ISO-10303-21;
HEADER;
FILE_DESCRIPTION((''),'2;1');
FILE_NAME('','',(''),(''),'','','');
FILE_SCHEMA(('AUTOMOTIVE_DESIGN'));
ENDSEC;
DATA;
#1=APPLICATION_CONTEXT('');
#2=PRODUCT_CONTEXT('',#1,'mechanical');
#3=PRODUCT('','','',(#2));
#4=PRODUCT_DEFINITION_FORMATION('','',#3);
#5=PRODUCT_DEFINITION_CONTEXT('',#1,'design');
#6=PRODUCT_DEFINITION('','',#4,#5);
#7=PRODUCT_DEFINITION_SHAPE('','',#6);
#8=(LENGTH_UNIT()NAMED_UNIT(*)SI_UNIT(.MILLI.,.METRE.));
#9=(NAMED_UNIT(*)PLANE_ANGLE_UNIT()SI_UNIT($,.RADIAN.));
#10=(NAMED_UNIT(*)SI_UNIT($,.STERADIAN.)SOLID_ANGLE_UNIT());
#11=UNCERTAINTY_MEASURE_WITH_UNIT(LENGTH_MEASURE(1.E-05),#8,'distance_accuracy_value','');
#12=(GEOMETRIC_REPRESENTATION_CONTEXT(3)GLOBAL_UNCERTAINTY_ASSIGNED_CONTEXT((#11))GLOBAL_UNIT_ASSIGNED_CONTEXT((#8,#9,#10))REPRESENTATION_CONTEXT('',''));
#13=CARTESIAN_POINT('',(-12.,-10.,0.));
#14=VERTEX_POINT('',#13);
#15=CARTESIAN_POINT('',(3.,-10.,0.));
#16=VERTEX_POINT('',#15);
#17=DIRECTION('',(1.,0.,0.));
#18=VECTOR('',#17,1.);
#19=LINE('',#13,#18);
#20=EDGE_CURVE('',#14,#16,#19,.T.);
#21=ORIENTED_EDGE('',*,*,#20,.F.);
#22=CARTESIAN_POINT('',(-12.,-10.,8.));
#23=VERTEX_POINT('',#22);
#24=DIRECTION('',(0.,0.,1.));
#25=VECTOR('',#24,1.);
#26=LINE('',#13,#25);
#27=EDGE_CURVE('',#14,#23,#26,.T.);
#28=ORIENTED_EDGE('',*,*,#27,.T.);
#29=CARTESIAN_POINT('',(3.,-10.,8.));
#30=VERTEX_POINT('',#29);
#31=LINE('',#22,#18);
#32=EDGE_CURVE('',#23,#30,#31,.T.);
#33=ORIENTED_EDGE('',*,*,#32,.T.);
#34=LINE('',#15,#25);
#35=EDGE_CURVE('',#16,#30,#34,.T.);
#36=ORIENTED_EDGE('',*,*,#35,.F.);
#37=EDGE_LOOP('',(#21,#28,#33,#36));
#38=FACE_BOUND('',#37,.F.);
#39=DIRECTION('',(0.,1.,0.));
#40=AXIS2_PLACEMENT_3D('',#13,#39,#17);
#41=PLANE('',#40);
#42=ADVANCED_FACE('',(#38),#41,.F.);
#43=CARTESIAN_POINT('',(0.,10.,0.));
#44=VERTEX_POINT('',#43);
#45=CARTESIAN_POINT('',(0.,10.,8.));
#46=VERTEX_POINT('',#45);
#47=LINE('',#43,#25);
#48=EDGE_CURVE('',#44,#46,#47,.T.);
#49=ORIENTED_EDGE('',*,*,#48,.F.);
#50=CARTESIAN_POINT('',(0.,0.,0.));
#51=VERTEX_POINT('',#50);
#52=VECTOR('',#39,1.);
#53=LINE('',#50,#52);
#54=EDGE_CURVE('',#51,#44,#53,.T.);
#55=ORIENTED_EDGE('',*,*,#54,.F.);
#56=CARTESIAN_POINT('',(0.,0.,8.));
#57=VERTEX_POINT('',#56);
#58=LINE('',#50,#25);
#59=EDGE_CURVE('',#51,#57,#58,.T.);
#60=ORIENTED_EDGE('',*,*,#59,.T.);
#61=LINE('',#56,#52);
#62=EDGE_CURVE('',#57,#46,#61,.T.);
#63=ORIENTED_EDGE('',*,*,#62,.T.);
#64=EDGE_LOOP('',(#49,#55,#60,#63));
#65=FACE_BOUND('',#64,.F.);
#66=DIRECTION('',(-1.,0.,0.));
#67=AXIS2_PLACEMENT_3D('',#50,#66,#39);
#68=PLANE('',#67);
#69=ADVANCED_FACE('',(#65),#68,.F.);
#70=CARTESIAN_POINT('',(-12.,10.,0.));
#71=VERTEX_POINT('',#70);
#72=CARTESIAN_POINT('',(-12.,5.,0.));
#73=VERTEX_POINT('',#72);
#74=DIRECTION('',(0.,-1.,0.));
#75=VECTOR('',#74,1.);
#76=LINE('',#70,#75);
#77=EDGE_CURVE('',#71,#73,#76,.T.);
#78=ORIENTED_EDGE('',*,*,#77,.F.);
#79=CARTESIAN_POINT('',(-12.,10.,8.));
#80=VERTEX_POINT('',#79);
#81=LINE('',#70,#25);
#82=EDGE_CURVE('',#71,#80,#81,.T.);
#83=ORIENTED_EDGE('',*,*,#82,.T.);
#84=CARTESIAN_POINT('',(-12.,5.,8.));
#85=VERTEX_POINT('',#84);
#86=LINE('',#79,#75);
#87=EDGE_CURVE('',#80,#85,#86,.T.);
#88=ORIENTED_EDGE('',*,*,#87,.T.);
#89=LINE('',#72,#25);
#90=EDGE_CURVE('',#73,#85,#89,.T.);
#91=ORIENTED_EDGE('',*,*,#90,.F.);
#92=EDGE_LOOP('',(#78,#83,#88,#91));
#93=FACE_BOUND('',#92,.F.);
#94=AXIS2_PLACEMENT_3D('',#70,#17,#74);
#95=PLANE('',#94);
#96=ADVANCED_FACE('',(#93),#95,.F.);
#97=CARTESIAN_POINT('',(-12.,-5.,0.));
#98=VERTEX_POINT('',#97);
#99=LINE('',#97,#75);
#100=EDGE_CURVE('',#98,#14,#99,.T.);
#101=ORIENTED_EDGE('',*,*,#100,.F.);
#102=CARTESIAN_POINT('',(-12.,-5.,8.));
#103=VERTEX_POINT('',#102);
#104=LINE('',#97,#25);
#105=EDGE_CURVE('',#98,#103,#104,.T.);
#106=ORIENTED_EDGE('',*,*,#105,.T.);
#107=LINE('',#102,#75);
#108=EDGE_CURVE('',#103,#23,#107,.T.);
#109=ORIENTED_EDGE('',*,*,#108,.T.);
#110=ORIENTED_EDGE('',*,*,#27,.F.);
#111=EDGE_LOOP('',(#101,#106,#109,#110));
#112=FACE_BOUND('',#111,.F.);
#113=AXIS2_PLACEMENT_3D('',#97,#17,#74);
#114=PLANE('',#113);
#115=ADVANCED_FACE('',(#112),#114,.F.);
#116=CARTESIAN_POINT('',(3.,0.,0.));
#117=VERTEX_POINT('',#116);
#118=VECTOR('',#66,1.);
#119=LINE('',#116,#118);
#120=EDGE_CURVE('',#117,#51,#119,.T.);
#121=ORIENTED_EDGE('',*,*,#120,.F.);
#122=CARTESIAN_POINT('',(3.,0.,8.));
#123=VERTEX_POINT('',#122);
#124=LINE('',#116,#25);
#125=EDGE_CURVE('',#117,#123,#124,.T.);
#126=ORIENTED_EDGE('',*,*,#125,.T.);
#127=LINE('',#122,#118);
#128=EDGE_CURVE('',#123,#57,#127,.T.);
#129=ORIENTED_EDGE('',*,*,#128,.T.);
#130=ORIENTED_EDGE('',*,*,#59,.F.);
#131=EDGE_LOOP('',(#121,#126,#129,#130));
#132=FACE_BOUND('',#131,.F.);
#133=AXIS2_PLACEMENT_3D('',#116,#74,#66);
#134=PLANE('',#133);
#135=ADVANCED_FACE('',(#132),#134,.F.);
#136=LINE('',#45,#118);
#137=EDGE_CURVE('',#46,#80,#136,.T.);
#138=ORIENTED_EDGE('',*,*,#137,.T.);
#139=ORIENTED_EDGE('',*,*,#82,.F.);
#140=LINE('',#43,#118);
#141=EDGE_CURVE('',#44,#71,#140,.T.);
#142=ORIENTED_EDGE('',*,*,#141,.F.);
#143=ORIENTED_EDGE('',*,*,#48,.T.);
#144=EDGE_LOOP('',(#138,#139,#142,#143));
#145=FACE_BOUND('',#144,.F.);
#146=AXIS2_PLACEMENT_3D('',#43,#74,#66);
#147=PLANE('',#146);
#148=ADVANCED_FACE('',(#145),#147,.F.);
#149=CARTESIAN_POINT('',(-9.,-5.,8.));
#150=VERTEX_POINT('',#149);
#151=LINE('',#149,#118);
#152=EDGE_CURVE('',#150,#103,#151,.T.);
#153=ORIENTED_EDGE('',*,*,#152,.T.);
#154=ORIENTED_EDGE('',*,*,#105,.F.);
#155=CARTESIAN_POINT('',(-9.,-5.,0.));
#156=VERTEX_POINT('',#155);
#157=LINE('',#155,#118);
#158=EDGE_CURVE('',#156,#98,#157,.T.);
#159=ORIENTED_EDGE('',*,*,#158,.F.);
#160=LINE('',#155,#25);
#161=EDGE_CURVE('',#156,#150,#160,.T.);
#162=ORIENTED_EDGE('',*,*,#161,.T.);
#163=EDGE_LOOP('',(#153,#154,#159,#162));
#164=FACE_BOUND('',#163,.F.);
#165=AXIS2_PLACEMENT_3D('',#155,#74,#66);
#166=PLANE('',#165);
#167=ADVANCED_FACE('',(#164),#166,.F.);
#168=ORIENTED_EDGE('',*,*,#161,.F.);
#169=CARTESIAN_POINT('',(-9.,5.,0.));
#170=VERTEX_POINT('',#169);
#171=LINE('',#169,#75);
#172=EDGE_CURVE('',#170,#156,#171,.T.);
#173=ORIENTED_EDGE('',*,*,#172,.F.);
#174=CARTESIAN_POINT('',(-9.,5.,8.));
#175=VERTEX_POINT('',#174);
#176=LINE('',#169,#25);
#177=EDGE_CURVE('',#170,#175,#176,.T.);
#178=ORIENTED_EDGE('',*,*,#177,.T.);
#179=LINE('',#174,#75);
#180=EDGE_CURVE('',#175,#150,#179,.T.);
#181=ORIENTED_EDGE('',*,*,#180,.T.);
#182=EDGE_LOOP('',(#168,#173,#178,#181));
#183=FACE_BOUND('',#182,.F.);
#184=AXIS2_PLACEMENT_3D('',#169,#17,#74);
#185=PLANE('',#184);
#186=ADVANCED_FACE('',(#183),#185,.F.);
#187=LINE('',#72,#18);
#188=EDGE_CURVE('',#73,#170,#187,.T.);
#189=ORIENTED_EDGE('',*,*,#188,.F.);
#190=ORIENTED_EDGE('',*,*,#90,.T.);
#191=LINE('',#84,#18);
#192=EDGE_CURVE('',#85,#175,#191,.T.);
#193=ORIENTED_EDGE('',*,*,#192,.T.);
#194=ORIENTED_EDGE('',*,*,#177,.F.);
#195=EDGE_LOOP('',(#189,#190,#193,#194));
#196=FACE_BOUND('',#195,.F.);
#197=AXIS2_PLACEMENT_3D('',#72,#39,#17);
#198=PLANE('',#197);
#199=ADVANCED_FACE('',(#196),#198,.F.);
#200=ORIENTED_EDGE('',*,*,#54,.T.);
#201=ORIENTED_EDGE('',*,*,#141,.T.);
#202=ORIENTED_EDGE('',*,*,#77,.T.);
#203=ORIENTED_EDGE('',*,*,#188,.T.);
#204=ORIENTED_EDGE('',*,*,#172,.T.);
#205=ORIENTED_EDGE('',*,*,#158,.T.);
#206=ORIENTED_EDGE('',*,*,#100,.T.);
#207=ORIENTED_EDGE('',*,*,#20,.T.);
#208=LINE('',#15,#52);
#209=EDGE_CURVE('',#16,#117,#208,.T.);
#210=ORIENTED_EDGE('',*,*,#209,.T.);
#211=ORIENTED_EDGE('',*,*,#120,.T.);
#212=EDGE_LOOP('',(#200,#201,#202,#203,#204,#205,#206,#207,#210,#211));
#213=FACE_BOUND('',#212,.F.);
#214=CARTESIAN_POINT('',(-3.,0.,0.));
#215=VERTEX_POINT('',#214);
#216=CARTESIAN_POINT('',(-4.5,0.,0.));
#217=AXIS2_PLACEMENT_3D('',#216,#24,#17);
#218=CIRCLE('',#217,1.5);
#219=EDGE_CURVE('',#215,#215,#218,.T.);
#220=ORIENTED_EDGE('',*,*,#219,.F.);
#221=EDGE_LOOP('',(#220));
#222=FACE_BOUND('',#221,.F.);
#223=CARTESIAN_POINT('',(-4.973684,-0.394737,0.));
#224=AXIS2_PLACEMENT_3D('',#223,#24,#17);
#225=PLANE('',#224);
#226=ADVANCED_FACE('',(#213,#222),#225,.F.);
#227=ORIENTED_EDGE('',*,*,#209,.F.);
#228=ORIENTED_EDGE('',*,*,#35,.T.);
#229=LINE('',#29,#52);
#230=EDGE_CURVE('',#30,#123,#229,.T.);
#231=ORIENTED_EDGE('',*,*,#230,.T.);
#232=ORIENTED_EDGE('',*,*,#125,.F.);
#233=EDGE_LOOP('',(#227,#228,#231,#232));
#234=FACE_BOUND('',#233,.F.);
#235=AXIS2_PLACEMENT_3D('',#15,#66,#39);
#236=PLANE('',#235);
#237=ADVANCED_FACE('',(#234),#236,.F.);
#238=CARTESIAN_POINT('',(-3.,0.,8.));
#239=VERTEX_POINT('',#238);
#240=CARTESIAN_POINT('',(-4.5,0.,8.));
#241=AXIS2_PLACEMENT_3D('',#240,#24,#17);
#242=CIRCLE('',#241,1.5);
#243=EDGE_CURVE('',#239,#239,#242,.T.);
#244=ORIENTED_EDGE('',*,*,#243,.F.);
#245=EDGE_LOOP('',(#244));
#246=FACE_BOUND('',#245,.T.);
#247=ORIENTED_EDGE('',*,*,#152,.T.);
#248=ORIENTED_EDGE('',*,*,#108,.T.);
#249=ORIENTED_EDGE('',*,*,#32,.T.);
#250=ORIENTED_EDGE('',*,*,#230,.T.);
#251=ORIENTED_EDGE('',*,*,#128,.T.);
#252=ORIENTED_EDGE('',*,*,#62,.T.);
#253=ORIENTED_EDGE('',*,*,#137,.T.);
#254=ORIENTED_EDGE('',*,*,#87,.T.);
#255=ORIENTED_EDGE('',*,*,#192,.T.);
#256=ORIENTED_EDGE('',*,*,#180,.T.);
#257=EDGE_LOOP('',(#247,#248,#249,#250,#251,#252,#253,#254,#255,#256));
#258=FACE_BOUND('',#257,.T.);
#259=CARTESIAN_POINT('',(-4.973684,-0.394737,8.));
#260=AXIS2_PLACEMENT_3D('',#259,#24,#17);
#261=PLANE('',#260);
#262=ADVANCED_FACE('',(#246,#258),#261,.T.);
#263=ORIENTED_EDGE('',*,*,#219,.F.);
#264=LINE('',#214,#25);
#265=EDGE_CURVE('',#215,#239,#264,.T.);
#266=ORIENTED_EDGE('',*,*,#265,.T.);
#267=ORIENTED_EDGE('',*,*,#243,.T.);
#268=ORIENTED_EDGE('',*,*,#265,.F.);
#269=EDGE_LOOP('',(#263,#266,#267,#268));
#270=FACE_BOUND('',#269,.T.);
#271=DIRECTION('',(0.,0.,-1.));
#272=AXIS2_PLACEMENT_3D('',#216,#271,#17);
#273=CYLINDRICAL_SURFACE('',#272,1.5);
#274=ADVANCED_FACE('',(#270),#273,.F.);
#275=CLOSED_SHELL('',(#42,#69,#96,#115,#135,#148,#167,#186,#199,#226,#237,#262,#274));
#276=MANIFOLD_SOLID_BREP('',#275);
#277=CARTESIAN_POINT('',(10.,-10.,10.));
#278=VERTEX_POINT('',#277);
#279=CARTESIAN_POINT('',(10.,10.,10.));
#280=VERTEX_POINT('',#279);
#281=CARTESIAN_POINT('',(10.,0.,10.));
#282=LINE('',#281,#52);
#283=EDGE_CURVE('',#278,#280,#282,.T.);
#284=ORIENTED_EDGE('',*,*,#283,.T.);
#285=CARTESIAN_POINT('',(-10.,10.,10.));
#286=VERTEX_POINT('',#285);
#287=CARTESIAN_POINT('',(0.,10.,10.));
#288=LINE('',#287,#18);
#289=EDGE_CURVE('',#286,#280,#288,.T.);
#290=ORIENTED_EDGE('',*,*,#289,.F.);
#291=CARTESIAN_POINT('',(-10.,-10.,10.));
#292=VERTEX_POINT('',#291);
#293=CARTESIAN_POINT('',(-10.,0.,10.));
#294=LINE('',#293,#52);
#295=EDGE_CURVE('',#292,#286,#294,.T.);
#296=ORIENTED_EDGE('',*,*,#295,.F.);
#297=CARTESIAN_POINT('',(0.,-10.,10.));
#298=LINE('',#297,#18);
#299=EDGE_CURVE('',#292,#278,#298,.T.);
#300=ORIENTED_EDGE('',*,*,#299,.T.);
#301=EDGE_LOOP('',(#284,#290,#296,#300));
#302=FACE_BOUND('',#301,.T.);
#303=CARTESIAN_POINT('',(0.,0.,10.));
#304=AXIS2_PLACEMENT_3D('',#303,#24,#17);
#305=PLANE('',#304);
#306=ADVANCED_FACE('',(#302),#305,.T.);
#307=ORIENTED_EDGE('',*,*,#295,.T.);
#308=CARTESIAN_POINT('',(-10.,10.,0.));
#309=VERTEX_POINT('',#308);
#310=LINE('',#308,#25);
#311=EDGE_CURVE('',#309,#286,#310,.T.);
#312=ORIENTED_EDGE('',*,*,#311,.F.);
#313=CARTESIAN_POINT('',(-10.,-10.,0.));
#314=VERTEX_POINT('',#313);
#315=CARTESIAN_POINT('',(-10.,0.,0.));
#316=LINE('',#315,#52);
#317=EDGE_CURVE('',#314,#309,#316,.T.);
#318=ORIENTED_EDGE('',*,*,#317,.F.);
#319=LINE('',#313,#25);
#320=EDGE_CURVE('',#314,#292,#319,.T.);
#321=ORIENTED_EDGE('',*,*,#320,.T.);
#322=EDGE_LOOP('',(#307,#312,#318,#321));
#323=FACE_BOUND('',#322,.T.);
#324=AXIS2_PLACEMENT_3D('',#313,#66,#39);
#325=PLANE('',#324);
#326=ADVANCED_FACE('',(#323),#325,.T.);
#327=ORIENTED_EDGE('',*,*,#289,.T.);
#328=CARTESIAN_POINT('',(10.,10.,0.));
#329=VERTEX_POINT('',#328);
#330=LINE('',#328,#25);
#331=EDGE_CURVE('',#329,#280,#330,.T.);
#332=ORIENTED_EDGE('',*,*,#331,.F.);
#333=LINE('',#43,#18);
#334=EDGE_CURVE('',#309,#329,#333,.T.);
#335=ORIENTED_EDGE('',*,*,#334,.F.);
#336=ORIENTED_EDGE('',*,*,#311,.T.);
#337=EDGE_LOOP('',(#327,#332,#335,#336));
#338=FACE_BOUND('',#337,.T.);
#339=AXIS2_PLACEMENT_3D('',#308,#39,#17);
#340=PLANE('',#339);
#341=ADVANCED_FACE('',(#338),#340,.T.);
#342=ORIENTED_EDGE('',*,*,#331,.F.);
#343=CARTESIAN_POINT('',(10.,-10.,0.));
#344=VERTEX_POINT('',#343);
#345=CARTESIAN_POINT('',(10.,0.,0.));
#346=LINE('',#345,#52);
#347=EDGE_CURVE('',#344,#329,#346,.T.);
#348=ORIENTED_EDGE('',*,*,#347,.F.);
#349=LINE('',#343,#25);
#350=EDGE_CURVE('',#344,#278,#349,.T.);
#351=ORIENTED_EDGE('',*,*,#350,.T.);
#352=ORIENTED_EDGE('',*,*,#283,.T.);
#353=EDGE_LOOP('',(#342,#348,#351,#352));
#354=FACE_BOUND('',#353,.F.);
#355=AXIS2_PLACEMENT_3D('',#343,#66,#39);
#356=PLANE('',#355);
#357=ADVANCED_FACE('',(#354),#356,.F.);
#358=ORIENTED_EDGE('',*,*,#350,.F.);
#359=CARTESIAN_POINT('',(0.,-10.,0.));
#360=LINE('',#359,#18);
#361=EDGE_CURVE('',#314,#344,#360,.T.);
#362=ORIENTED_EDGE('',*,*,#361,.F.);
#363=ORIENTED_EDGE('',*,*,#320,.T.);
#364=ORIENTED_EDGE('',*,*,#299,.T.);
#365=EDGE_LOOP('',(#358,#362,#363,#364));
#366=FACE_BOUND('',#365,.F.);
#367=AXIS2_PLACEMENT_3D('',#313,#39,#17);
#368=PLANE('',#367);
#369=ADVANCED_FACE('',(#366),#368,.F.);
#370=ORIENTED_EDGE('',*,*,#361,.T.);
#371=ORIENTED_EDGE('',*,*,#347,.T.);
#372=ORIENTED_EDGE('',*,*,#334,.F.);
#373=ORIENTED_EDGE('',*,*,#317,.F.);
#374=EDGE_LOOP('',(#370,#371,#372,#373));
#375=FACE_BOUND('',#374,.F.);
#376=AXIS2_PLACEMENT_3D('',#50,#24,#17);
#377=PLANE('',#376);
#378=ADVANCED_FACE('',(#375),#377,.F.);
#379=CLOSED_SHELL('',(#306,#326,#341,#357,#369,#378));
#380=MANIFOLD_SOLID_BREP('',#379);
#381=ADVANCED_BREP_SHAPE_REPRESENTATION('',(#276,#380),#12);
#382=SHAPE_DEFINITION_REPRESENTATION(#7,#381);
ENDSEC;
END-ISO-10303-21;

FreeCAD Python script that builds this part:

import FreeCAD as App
import Part
import Sketcher
from FreeCAD import Vector


def add_polygon(sketch, points):
    """Adds a closed chain of lines whose ends are joined by coincident constraints."""
    first, n = sketch.GeometryCount, len(points)
    for a, b in zip(points, points[1:] + points[:1]):
        sketch.addGeometry(Part.LineSegment(App.Vector(*a, 0), App.Vector(*b, 0)), False)
    for i in range(n):
        sketch.addConstraint(Sketcher.Constraint("Coincident", first + i, 2, first + (i + 1) % n, 1))

doc = App.newDocument("Part")
body = doc.addObject("PartDesign::Body", "Body")

sketch1 = body.newObject("Sketcher::SketchObject", "Sketch")
sketch1.AttachmentSupport = (doc.getObject("XY_Plane"), [""])
sketch1.MapMode = "FlatFace"
add_polygon(sketch1, [(-10, 10), (-10, -10), (10, -10), (10, 10)])
sketch1.addConstraint([
    Sketcher.Constraint("Vertical", 0),
    Sketcher.Constraint("Horizontal", 1),
    Sketcher.Constraint("Vertical", 2),
    Sketcher.Constraint("Horizontal", 3),
    Sketcher.Constraint("Symmetric", 0, 2, 2, 2, -1, 1),
    Sketcher.Constraint("Equal", 3, 0),
    Sketcher.Constraint("DistanceX", 1, 1, 1, 2, 20.0),
])
pad1 = body.newObject("PartDesign::Pad", "Pad")
pad1.Profile = sketch1
pad1.Length = 10
body2 = doc.addObject("PartDesign::Body", "Body001")

sketch2 = body2.newObject("Sketcher::SketchObject", "Sketch001")
sketch2.AttachmentSupport = (doc.getObject("XY_Plane001"), [""])
sketch2.MapMode = "FlatFace"
add_polygon(sketch2, [(-12, -10), (3, -10), (3, 0), (0, 0), (0, 10), (-12, 10), (-12, 5), (-9, 5), (-9, -5), (-12, -5)])
sketch2.addGeometry(Part.Circle(Vector(-4.5, 0, 0), Vector(0, 0, 1), 1.5), False)
sketch2.addConstraint([
    Sketcher.Constraint("Horizontal", 0),
    Sketcher.Constraint("Vertical", 1),
    Sketcher.Constraint("Horizontal", 2),
    Sketcher.Constraint("Vertical", 3),
    Sketcher.Constraint("Horizontal", 4),
    Sketcher.Constraint("Vertical", 5),
    Sketcher.Constraint("Horizontal", 6),
    Sketcher.Constraint("Vertical", 7),
    Sketcher.Constraint("Horizontal", 8),
    Sketcher.Constraint("Vertical", 9),
    Sketcher.Constraint("Coincident", 2, 2, -1, 1),
    Sketcher.Constraint("Symmetric", 5, 2, 8, 2, -1),
    Sketcher.Constraint("PointOnObject", 10, 3, -1),
    Sketcher.Constraint("Equal", 2, 6),
    Sketcher.Constraint("Equal", 1, 3),
    Sketcher.Constraint("Equal", 3, 7),
    Sketcher.Constraint("Diameter", 10, 3.0),
    Sketcher.Constraint("DistanceX", 0, 1, 0, 2, 15.0),
    Sketcher.Constraint("DistanceX", 2, 2, 2, 1, 3.0),
    Sketcher.Constraint("DistanceY", 1, 1, 1, 2, 10.0),
    Sketcher.Constraint("DistanceX", 10, 3, -1, 1, 4.5),
])
pad2 = body2.newObject("PartDesign::Pad", "Pad001")
pad2.Profile = sketch2
pad2.Length = 8

doc.recompute()
